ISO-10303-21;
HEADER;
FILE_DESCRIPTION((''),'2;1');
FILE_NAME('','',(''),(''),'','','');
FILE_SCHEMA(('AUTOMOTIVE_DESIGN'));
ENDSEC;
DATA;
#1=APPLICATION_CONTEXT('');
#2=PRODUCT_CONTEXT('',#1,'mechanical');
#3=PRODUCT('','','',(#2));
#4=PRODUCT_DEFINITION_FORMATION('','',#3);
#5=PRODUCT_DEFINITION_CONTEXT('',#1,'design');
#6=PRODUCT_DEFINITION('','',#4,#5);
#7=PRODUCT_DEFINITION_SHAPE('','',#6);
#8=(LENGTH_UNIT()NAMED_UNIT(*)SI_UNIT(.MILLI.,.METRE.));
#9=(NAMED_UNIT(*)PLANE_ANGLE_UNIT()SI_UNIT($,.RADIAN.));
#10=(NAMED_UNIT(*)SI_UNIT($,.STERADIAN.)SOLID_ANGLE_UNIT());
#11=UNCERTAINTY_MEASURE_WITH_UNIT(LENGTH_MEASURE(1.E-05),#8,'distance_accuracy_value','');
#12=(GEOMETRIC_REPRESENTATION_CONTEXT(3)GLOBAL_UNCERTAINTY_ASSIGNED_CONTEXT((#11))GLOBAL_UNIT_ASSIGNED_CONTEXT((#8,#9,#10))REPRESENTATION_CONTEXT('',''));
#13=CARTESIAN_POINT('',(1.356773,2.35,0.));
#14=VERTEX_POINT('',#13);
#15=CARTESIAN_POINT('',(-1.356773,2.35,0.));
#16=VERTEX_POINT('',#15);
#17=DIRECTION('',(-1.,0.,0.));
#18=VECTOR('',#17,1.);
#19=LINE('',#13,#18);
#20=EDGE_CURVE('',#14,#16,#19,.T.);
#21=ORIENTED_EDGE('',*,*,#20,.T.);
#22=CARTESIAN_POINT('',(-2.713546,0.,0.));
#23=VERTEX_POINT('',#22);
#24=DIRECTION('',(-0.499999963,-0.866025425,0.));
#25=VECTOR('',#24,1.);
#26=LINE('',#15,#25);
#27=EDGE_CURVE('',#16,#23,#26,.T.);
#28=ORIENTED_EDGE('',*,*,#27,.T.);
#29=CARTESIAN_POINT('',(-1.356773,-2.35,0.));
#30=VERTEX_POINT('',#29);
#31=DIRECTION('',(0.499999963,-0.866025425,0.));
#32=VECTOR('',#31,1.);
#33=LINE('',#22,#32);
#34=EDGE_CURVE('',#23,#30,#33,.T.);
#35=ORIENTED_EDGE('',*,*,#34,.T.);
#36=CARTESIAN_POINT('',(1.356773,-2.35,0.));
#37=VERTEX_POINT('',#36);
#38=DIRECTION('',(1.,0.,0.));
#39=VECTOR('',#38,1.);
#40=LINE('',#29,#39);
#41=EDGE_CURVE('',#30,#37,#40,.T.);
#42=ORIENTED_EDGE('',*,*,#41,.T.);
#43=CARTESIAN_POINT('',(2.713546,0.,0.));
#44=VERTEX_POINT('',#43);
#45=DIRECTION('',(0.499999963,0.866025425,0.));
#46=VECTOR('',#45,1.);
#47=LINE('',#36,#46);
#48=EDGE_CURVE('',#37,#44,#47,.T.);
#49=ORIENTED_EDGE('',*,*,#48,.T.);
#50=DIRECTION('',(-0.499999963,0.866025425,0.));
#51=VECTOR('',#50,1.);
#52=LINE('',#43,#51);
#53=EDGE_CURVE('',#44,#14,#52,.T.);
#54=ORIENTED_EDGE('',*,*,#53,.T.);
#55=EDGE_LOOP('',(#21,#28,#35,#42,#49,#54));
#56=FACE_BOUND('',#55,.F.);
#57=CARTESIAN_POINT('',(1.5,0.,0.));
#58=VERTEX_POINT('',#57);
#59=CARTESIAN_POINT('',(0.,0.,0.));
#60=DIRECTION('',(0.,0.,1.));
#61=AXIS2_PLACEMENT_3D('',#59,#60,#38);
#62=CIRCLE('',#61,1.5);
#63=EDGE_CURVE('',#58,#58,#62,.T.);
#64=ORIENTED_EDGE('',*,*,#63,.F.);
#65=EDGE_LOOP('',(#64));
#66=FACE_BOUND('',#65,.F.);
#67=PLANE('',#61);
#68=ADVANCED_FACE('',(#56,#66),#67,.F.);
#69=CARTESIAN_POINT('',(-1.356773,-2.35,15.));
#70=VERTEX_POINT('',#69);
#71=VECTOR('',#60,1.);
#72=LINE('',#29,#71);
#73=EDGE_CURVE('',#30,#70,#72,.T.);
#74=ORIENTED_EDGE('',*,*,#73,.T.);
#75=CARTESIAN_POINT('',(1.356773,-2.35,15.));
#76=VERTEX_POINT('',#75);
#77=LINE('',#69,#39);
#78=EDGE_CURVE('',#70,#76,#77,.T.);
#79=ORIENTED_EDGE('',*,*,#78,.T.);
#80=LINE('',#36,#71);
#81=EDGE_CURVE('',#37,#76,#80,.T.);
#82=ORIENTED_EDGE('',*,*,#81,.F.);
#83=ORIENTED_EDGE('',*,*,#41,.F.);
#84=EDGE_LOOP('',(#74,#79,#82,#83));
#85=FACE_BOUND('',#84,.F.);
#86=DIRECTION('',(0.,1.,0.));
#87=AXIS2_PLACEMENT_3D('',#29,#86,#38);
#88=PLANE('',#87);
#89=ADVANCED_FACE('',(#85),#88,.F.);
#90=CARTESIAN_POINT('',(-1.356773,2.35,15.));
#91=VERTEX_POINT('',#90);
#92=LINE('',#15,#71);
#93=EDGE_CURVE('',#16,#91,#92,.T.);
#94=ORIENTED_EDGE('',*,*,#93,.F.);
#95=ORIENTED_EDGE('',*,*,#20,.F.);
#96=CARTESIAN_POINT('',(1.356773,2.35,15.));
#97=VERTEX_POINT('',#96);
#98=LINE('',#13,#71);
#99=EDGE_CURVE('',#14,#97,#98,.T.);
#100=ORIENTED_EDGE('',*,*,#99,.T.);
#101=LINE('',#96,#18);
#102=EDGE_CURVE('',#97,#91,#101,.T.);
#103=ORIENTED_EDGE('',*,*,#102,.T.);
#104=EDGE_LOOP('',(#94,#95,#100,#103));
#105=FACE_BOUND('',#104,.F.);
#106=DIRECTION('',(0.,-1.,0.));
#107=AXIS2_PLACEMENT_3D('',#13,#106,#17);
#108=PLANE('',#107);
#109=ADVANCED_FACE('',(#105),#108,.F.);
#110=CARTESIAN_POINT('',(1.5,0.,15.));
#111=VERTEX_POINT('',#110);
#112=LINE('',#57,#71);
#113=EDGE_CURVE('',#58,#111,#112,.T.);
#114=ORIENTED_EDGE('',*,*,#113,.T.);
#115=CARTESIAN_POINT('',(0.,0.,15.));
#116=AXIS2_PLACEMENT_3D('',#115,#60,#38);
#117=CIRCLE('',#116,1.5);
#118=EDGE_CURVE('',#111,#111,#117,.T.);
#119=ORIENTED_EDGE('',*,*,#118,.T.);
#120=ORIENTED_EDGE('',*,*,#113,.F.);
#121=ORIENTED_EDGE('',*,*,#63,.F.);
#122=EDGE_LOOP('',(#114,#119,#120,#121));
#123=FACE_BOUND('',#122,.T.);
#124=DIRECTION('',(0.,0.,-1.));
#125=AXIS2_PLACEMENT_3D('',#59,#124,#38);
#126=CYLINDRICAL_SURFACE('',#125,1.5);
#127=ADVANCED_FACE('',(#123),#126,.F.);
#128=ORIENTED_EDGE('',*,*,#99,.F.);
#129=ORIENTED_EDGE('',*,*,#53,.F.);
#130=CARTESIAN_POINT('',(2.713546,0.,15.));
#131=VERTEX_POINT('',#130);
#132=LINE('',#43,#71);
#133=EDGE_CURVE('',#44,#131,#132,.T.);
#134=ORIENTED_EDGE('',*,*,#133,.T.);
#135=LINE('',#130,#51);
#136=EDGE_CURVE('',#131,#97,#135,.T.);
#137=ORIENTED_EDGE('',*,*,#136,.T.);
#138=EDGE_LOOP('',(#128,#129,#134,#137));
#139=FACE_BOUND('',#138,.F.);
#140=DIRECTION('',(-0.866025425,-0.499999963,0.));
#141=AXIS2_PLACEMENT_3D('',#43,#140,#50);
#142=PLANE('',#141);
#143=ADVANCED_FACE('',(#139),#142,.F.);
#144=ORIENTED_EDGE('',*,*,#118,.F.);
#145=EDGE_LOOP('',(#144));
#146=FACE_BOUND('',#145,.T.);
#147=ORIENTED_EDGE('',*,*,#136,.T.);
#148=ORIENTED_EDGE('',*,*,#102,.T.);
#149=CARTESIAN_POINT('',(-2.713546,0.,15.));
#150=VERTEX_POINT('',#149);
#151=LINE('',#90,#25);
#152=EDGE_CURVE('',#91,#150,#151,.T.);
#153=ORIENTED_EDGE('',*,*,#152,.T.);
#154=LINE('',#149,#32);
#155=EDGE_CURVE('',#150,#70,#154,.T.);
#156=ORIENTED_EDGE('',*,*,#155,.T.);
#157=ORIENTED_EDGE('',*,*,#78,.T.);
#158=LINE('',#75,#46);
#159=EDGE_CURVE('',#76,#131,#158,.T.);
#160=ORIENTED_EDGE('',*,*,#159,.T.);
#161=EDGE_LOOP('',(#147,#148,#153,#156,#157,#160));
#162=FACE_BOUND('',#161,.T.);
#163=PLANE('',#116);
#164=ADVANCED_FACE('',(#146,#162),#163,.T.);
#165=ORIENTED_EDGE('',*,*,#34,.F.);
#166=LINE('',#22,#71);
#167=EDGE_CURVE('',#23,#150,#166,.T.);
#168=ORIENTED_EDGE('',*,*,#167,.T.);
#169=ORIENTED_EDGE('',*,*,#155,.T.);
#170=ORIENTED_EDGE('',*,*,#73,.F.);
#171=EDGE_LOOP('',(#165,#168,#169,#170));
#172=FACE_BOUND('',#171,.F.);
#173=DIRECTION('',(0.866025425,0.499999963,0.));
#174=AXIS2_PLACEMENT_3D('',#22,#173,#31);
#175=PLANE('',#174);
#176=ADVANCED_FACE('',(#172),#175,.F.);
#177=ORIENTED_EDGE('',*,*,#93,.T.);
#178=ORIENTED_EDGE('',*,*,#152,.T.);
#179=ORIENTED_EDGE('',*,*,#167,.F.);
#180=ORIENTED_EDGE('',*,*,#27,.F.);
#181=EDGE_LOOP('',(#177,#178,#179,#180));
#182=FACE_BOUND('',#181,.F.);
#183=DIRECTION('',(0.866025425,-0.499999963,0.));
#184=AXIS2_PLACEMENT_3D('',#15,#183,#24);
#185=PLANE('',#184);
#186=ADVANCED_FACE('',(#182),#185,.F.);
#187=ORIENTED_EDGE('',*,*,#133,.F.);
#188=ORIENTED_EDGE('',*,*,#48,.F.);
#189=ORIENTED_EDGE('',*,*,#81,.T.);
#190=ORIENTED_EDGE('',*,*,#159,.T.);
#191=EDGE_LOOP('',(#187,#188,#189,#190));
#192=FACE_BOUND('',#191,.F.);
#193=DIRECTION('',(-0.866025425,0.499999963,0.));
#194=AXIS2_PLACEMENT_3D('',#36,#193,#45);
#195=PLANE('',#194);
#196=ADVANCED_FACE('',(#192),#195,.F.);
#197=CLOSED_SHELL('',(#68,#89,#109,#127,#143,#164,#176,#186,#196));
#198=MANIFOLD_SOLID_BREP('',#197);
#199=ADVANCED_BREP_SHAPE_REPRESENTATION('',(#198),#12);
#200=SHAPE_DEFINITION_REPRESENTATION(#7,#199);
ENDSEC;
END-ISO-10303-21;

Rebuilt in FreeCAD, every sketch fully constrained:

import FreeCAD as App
import Part
import Sketcher
from FreeCAD import Vector
Q = App.Units.Quantity


def add_polygon(sketch, points):
    """Adds a closed chain of lines whose ends are joined by coincident constraints."""
    first, n = sketch.GeometryCount, len(points)
    for a, b in zip(points, points[1:] + points[:1]):
        sketch.addGeometry(Part.LineSegment(App.Vector(*a, 0), App.Vector(*b, 0)), False)
    for i in range(n):
        sketch.addConstraint(Sketcher.Constraint("Coincident", first + i, 2, first + (i + 1) % n, 1))

doc = App.newDocument("Part")
body = doc.addObject("PartDesign::Body", "Body")

# Sketch on XY plane
sketch1 = doc.addObject("Sketcher::SketchObject", "Sketch")
body.addObject(sketch1)
sketch1.AttachmentSupport = (doc.XY_Plane, [""])
sketch1.MapMode = "FlatFace"
add_polygon(sketch1, [(1.4, -2.4), (2.7, 0), (1.4, 2.4), (-1.4, 2.4), (-2.7, 0), (-1.4, -2.4)])  # lines 0-5
sketch1.addGeometry(Part.Circle(Vector(0, 0, 0), Vector(0, 0, 1), 1.5), False)  # 6
sketch1.addConstraint([
    Sketcher.Constraint("Horizontal", 2),
    Sketcher.Constraint("Horizontal", 5),
    Sketcher.Constraint("Coincident", 6, 3, -1, 1),
    Sketcher.Constraint("Symmetric", 0, 2, 3, 2, -1, 1),
    Sketcher.Constraint("Symmetric", 1, 2, 4, 2, -1, 1),
    Sketcher.Constraint("PointOnObject", 0, 2, -1),
    Sketcher.Constraint("Parallel", 0, 3),
    Sketcher.Constraint("Vertical", 2, 2, 4, 2),
    Sketcher.Constraint("Diameter", 6, Q("3 mm")),
    Sketcher.Constraint("Angle", 0, Q("60.000002 deg")),
    Sketcher.Constraint("DistanceY", 4, 2, 2, 2, Q("4.7 mm")),
    Sketcher.Constraint("DistanceX", 2, 2, 2, 1, Q("2.713546 mm")),
])
pad1 = doc.addObject("PartDesign::Pad", "Pad")
body.addObject(pad1)
pad1.Profile = sketch1
pad1.Length = 15

doc.recompute()
